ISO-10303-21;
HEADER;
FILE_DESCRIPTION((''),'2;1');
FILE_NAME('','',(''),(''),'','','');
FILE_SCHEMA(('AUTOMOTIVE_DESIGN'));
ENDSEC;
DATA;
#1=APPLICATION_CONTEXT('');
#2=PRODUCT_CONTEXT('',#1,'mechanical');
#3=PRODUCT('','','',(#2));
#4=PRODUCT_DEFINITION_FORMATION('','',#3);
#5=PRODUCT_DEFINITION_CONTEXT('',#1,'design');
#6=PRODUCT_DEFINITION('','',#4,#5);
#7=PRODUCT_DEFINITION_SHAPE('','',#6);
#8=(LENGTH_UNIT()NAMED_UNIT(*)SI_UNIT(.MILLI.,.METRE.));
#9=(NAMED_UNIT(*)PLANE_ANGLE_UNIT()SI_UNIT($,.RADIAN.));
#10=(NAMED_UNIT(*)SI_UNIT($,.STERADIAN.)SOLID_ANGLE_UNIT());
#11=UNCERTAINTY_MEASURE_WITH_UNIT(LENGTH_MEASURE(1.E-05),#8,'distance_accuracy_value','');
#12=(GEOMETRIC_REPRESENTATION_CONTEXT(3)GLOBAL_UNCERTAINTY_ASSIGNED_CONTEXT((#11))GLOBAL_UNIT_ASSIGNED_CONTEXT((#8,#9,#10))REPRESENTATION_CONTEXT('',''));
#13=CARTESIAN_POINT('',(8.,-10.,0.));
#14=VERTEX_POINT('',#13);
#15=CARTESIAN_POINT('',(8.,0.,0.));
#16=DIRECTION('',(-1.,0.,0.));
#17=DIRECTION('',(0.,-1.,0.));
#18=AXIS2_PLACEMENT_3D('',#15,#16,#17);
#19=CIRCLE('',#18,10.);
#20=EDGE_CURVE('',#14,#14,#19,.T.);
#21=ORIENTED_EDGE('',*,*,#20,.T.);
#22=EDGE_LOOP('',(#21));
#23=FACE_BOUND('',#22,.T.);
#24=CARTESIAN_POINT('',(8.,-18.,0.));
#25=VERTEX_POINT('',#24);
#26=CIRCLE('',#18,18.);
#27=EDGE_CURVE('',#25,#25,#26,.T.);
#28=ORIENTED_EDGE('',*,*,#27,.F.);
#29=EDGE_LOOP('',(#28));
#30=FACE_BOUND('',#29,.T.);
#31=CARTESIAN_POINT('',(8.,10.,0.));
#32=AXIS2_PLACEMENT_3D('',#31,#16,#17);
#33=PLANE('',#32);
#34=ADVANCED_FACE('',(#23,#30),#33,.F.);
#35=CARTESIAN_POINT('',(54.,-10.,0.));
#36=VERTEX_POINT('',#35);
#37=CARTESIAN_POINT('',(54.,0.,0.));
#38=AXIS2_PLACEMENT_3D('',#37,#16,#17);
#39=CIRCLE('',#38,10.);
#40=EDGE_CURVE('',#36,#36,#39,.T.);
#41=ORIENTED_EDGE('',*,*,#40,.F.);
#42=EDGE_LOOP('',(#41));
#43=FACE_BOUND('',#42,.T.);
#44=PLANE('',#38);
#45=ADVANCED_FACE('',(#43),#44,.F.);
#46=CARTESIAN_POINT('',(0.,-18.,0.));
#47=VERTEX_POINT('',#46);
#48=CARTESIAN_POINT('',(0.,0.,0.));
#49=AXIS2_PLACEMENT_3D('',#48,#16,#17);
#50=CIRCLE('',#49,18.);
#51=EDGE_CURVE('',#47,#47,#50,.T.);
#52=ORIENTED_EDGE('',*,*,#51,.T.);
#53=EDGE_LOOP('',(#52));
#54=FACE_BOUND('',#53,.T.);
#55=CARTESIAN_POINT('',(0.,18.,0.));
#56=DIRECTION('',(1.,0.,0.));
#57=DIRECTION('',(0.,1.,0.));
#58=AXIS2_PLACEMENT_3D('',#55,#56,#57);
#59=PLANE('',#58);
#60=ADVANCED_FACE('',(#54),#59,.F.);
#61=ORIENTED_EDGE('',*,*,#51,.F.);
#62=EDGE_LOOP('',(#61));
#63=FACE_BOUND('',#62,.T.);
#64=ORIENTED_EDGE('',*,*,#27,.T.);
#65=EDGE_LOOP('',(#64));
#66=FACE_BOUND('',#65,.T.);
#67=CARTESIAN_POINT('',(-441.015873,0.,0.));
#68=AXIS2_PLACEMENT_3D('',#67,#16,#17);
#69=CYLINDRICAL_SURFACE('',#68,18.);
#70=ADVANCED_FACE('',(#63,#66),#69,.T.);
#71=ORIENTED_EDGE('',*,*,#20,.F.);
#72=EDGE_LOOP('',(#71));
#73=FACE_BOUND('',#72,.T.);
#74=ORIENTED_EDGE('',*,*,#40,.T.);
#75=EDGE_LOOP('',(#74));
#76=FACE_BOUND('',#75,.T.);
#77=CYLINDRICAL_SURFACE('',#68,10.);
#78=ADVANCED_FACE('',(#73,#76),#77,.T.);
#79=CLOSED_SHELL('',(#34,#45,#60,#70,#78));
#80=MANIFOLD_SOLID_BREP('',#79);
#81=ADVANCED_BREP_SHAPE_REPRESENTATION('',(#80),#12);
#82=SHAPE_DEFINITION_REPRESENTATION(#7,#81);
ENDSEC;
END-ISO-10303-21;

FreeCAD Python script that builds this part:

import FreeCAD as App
import Part
import Sketcher

V = App.Vector
Q = App.Units.Quantity


def add_polygon(sketch, points):
    """Adds a closed chain of lines whose ends are joined by coincident constraints."""
    first, n = sketch.GeometryCount, len(points)
    for a, b in zip(points, points[1:] + points[:1]):
        sketch.addGeometry(Part.LineSegment(App.Vector(*a, 0), App.Vector(*b, 0)), False)
    for i in range(n):
        sketch.addConstraint(Sketcher.Constraint("Coincident", first + i, 2, first + (i + 1) % n, 1))

doc = App.newDocument("Part")
body = doc.addObject("PartDesign::Body", "Body")

# Sketch on XY plane
sketch1 = body.newObject("Sketcher::SketchObject", "Sketch")
sketch1.AttachmentSupport = (doc.getObject("XY_Plane"), [""])
sketch1.MapMode = "FlatFace"
add_polygon(sketch1, [(54, 10), (8, 10), (8, 18), (0, 18), (0, 0), (54, 0)])  # lines 0-5
sketch1.addConstraint([
    Sketcher.Constraint("Horizontal", 0),
    Sketcher.Constraint("Vertical", 1),
    Sketcher.Constraint("Horizontal", 2),
    Sketcher.Constraint("Vertical", 3),
    Sketcher.Constraint("Horizontal", 4),
    Sketcher.Constraint("Vertical", 5),
    Sketcher.Constraint("Coincident", 3, 2, -1, 1),
    Sketcher.Constraint("Equal", 2, 1),
    Sketcher.Constraint("DistanceX", 0, 2, 0, 1, Q("46 mm")),
    Sketcher.Constraint("DistanceX", 2, 2, 2, 1, Q("8 mm")),
    Sketcher.Constraint("DistanceY", 3, 2, 3, 1, Q("18 mm")),
])
revolution = body.newObject("PartDesign::Revolution", "Revolution")
revolution.Profile = sketch1
revolution.ReferenceAxis = (sketch1, ["H_Axis"])
revolution.Angle = 360

doc.recompute()
